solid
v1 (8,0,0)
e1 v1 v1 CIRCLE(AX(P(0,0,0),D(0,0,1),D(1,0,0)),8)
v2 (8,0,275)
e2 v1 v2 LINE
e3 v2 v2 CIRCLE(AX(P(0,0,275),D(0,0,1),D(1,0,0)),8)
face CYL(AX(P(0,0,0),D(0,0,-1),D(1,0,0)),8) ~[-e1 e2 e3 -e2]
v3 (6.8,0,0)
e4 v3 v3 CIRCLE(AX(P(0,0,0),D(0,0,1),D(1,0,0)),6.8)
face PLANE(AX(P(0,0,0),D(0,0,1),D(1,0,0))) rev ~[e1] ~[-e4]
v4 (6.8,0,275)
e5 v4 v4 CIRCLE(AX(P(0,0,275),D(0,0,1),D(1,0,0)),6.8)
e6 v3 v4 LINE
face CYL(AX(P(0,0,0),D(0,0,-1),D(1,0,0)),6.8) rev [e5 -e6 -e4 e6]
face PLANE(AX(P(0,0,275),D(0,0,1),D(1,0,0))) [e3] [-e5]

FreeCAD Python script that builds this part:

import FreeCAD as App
import Part
import Sketcher
Q = App.Units.Quantity

doc = App.newDocument("Part")
params = doc.addObject("Spreadsheet::Sheet", "Params")
for row, (alias, value) in enumerate([
    ("sketch1_diameter", "16 mm"),
    ("sketch1_diameter2", "13.6 mm"),
    ("pad1_length", "275 mm"),
], start=1):
    params.set(f"A{row}", alias)
    params.set(f"B{row}", "=" + value)
    params.setAlias(f"B{row}", alias)

body = doc.addObject("PartDesign::Body", "Body")

# Sketch on XY plane
sketch1 = body.newObject("Sketcher::SketchObject", "Sketch")
sketch1.AttachmentSupport = (doc.getObject("XY_Plane"), [""])
sketch1.MapMode = "FlatFace"
sketch1.addGeometry(Part.Circle(App.Vector(0, 0, 0), App.Vector(0, 0, 1), 8), False)
sketch1.addGeometry(Part.Circle(App.Vector(0, 0, 0), App.Vector(0, 0, 1), 7), False)
sketch1.addConstraint(Sketcher.Constraint("Coincident", 0, 3, -1, 1))
sketch1.addConstraint(Sketcher.Constraint("Coincident", 1, 3, -1, 1))
sketch1.addConstraint(Sketcher.Constraint("Diameter", 0, Q("16 mm")))
sketch1.addConstraint(Sketcher.Constraint("Diameter", 1, Q("13.6 mm")))
sketch1.setExpression("Constraints[2]", "Params.sketch1_diameter")
sketch1.setExpression("Constraints[3]", "Params.sketch1_diameter2")
pad1 = body.newObject("PartDesign::Pad", "Pad")
pad1.Profile = sketch1
pad1.setExpression("Length", "Params.pad1_length")

doc.recompute()
